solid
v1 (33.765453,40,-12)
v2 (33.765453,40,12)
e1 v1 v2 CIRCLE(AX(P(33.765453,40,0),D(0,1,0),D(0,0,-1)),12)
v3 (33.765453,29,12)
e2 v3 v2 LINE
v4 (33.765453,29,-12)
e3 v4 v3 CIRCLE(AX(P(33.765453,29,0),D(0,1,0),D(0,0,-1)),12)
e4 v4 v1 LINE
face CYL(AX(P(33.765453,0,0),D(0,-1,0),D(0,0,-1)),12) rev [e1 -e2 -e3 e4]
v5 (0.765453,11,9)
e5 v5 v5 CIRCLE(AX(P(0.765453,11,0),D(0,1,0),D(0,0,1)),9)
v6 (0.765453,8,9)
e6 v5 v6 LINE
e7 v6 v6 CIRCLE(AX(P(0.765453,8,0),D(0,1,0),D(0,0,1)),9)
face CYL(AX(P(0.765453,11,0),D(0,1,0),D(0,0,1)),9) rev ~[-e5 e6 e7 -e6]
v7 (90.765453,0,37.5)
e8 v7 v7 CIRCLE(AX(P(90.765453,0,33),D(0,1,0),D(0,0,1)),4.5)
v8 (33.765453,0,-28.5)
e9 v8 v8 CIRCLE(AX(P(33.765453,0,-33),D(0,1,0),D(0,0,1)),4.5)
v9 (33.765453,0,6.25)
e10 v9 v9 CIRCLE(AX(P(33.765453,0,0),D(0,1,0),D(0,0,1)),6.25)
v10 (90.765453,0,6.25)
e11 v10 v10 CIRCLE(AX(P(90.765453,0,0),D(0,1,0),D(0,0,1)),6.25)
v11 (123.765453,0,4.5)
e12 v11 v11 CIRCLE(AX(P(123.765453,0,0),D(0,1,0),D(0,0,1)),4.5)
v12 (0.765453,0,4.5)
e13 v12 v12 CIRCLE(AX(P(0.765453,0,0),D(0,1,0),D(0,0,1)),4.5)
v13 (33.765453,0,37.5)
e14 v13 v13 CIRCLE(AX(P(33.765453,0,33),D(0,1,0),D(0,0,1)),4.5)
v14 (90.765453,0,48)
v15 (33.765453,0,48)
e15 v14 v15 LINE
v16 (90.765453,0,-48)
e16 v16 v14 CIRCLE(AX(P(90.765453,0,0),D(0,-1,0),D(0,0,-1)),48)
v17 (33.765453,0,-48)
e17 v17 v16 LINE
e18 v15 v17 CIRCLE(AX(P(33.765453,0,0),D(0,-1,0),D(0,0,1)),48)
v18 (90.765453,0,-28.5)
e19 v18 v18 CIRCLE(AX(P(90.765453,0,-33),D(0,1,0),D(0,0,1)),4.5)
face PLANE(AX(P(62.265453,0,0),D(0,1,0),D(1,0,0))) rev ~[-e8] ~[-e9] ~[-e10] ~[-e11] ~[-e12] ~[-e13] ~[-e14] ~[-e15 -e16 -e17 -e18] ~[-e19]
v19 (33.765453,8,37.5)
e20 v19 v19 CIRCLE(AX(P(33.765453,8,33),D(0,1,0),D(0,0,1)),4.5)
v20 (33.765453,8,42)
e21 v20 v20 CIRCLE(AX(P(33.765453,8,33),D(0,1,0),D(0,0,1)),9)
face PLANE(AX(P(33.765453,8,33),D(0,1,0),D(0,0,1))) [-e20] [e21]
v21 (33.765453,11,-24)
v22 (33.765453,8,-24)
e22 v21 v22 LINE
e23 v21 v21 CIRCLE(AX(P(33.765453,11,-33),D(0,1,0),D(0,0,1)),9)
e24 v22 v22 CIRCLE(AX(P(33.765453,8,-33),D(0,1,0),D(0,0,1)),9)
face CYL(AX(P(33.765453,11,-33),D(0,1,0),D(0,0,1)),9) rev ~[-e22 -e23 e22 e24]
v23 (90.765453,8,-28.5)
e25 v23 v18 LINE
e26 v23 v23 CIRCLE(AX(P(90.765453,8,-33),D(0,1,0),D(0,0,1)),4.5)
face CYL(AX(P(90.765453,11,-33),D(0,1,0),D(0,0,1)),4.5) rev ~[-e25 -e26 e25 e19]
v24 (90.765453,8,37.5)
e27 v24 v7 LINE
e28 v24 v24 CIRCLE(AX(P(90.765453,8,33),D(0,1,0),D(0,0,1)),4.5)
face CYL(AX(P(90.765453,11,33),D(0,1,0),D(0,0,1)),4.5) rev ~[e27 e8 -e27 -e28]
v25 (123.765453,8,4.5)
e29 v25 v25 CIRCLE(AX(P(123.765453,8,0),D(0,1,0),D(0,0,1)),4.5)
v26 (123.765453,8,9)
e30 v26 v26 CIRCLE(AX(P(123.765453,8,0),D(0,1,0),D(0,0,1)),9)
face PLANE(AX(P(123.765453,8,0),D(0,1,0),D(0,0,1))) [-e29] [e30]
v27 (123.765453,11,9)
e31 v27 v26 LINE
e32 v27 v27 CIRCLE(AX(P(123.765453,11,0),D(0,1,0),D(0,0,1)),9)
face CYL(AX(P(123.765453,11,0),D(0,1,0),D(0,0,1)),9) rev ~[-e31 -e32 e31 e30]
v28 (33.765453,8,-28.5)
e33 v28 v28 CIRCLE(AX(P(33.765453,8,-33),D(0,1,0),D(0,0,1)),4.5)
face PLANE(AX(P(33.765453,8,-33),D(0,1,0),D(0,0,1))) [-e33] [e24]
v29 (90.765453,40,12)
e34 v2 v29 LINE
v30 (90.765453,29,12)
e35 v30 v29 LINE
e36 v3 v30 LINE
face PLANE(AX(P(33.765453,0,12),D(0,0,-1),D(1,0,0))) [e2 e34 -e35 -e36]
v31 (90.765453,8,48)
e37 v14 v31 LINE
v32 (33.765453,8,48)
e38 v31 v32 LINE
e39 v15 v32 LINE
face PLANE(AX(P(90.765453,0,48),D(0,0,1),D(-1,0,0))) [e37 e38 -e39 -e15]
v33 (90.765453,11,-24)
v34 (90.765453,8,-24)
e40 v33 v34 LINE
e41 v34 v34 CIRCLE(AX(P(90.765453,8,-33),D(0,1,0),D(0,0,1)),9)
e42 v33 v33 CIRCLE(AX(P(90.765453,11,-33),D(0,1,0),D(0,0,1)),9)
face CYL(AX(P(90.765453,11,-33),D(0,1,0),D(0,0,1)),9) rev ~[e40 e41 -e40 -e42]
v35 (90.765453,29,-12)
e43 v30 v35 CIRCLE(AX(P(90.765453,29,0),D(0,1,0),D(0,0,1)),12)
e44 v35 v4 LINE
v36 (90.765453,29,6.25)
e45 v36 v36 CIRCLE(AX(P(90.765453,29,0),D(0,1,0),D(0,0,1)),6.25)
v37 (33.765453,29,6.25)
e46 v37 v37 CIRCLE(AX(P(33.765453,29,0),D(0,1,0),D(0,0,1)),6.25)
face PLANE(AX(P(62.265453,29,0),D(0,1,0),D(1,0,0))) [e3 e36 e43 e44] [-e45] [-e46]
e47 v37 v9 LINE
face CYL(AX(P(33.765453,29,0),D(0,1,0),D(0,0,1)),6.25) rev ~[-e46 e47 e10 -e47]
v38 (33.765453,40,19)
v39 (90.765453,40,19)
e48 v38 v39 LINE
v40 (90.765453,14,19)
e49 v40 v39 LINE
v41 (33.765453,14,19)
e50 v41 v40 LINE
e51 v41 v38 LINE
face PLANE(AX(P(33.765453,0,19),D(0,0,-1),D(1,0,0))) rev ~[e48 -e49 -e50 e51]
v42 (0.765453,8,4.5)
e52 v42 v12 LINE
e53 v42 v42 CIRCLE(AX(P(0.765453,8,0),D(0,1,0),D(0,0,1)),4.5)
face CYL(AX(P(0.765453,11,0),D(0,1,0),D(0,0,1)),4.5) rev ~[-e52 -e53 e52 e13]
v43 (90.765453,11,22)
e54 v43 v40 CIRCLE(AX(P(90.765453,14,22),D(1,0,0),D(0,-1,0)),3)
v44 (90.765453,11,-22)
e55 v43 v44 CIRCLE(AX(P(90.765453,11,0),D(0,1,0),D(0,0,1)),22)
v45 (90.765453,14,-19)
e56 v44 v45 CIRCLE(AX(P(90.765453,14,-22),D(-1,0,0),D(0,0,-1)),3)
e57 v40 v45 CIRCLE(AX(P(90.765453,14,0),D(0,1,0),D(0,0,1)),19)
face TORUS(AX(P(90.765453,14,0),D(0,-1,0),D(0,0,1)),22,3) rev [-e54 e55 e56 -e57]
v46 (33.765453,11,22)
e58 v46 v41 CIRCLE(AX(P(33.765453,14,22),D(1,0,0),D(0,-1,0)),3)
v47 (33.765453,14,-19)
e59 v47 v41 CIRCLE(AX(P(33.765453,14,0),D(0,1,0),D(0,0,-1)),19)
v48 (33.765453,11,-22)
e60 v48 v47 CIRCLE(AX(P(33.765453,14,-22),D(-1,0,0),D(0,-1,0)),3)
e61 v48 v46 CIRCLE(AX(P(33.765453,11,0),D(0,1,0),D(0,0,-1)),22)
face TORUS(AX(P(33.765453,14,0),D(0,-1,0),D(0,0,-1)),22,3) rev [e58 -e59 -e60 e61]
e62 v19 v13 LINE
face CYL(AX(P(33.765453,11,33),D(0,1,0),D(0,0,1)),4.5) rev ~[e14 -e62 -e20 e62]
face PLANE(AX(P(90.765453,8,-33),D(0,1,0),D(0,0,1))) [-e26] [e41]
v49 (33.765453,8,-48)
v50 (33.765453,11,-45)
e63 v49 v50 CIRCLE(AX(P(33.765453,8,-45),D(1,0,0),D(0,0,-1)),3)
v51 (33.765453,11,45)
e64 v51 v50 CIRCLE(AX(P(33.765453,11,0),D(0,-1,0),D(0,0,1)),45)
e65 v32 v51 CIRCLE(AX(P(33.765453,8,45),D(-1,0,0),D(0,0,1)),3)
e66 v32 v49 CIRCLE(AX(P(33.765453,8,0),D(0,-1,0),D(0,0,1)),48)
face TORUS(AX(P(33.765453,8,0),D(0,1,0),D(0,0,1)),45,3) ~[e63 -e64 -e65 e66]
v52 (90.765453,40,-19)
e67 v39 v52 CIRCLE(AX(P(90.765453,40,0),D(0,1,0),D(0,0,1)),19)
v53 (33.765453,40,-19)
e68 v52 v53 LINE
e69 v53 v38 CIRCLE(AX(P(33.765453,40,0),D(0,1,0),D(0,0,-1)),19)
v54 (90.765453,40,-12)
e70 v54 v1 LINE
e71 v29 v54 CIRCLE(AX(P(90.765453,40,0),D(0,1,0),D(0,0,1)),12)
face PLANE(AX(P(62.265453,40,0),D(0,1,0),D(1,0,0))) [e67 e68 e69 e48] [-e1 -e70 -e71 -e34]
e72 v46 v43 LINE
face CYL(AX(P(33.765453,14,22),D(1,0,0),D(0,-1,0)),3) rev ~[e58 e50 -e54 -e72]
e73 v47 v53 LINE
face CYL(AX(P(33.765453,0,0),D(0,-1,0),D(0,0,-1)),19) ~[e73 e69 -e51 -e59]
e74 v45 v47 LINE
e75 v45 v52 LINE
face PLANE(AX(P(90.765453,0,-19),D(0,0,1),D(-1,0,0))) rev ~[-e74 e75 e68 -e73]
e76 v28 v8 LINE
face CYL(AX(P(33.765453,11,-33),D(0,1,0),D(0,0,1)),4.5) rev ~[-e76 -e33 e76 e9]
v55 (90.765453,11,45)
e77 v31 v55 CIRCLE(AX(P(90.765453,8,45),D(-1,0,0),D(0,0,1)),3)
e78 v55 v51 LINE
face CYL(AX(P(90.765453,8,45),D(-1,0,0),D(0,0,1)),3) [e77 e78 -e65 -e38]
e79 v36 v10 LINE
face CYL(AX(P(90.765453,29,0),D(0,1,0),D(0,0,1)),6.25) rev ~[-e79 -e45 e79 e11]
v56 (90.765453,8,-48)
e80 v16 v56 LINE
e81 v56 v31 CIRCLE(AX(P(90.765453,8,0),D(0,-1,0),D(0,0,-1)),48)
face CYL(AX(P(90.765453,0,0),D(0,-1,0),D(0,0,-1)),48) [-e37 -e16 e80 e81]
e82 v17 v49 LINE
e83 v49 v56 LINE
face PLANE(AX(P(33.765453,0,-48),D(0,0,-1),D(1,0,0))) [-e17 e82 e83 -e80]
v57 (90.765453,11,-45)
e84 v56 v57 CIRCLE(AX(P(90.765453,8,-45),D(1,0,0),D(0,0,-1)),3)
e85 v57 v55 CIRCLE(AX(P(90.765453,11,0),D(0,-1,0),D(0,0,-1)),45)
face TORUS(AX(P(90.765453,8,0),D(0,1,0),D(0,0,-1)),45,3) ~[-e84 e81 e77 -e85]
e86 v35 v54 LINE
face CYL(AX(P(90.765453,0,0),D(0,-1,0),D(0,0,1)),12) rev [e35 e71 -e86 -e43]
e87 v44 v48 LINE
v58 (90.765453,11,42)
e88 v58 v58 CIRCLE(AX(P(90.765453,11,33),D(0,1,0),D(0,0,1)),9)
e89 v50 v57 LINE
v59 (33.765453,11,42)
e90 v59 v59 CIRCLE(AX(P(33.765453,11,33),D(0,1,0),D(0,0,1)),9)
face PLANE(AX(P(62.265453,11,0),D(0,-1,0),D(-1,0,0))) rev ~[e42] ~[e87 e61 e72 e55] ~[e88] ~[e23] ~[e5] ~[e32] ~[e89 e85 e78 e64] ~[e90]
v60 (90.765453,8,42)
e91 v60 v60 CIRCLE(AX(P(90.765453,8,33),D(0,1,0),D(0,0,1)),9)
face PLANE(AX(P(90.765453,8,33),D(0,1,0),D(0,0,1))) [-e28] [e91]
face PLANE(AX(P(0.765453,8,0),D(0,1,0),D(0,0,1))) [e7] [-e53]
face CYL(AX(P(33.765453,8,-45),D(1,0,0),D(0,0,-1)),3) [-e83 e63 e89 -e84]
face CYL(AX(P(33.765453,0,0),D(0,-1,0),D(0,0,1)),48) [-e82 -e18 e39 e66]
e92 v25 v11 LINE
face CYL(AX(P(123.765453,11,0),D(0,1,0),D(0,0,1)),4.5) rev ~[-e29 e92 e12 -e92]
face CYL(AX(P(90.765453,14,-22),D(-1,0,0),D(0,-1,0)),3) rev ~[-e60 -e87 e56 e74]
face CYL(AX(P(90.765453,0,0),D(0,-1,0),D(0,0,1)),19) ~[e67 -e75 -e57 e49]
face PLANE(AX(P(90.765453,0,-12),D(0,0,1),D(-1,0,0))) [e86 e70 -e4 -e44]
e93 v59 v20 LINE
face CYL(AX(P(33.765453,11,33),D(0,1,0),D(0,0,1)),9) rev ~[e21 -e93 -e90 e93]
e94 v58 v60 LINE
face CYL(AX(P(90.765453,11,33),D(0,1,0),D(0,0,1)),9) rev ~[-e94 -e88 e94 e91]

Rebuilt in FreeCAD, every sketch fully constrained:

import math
import FreeCAD as App
import Part
import Sketcher

V = App.Vector


def edges_at(feature, points):
    """Names of the edges that pass closest to the given points."""
    edges = feature.Shape.Edges
    near = lambda p: min(range(len(edges)), key=lambda i: edges[i].distToShape(Part.Vertex(*p))[0])
    return sorted({f"Edge{near(p) + 1}" for p in points})

doc = App.newDocument("Part")
body = doc.addObject("PartDesign::Body", "Body")

# Sketch on XZ plane
sketch1 = body.newObject("Sketcher::SketchObject", "Sketch")
sketch1.AttachmentSupport = (doc.getObject("XZ_Plane"), [""])
sketch1.MapMode = "FlatFace"
sketch1.addGeometry(Part.LineSegment(V(91, -48, 0), V(34, -48, 0)), False)
sketch1.addGeometry(Part.ArcOfCircle(Part.Circle(V(34, 0, 0), V(0, 0, 1), 48), math.radians(90), math.radians(270)), False)
sketch1.addGeometry(Part.LineSegment(V(34, 48, 0), V(91, 48, 0)), False)
sketch1.addGeometry(Part.ArcOfCircle(Part.Circle(V(91, 0, 0), V(0, 0, 1), 48), math.radians(-90), math.radians(90)), False)
sketch1.addConstraint(Sketcher.Constraint("Tangent", 0, 2, 1, 2))
sketch1.addConstraint(Sketcher.Constraint("Tangent", 1, 1, 2, 1))
sketch1.addConstraint(Sketcher.Constraint("Tangent", 2, 2, 3, 2))
sketch1.addConstraint(Sketcher.Constraint("Tangent", 3, 1, 0, 1))
sketch1.addConstraint(Sketcher.Constraint("Horizontal", 0))
sketch1.addConstraint(Sketcher.Constraint("Horizontal", 2))
sketch1.addConstraint(Sketcher.Constraint("PointOnObject", 1, 3, -1))
sketch1.addConstraint(Sketcher.Constraint("Radius", 1, 48.0))
sketch1.addConstraint(Sketcher.Constraint("DistanceX", 0, 2, 0, 1, 57.0))
sketch1.addConstraint(Sketcher.Constraint("DistanceX", -1, 1, 1, 3, 33.765453))
pad1 = body.newObject("PartDesign::Pad", "Pad")
pad1.Profile = sketch1
pad1.Length = 11
pad1.Reversed = True

# Sketch on XZ plane
sketch2 = body.newObject("Sketcher::SketchObject", "Sketch001")
sketch2.AttachmentSupport = (doc.getObject("XZ_Plane"), [""])
sketch2.MapMode = "FlatFace"
sketch2.AttachmentOffset = App.Placement(V(0, 0, -11), App.Rotation())
sketch2.addGeometry(Part.Circle(V(0.8, 0, 0), V(0, 0, 1), 9), False)
sketch2.addGeometry(Part.Circle(V(0.8, 0, 0), V(0, 0, 1), 4.5), False)
sketch2.addGeometry(Part.Circle(V(33.8, -33, 0), V(0, 0, 1), 9), False)
sketch2.addGeometry(Part.Circle(V(33.8, -33, 0), V(0, 0, 1), 4.5), False)
sketch2.addGeometry(Part.Circle(V(90.8, -33, 0), V(0, 0, 1), 9), False)
sketch2.addGeometry(Part.Circle(V(90.8, -33, 0), V(0, 0, 1), 4.5), False)
sketch2.addGeometry(Part.Circle(V(123.8, 0, 0), V(0, 0, 1), 9), False)
sketch2.addGeometry(Part.Circle(V(123.8, 0, 0), V(0, 0, 1), 4.5), False)
sketch2.addGeometry(Part.Circle(V(90.8, 33, 0), V(0, 0, 1), 9), False)
sketch2.addGeometry(Part.Circle(V(90.8, 33, 0), V(0, 0, 1), 4.5), False)
sketch2.addGeometry(Part.Circle(V(33.8, 33, 0), V(0, 0, 1), 9), False)
sketch2.addGeometry(Part.Circle(V(33.8, 33, 0), V(0, 0, 1), 4.5), False)
sketch2.addConstraint(Sketcher.Constraint("Coincident", 1, 3, 0, 3))
sketch2.addConstraint(Sketcher.Constraint("Coincident", 3, 3, 2, 3))
sketch2.addConstraint(Sketcher.Constraint("Coincident", 5, 3, 4, 3))
sketch2.addConstraint(Sketcher.Constraint("Coincident", 7, 3, 6, 3))
sketch2.addConstraint(Sketcher.Constraint("Coincident", 9, 3, 8, 3))
sketch2.addConstraint(Sketcher.Constraint("Coincident", 11, 3, 10, 3))
sketch2.addConstraint(Sketcher.Constraint("Equal", 0, 2))
sketch2.addConstraint(Sketcher.Constraint("Equal", 1, 3))
sketch2.addConstraint(Sketcher.Constraint("Equal", 2, 4))
sketch2.addConstraint(Sketcher.Constraint("Equal", 3, 5))
sketch2.addConstraint(Sketcher.Constraint("Equal", 4, 6))
sketch2.addConstraint(Sketcher.Constraint("Equal", 5, 7))
sketch2.addConstraint(Sketcher.Constraint("Equal", 6, 8))
sketch2.addConstraint(Sketcher.Constraint("Equal", 7, 9))
sketch2.addConstraint(Sketcher.Constraint("Equal", 8, 10))
sketch2.addConstraint(Sketcher.Constraint("Equal", 9, 11))
sketch2.addConstraint(Sketcher.Constraint("Symmetric", 4, 3, 8, 3, -1))
sketch2.addConstraint(Sketcher.Constraint("Symmetric", 2, 3, 10, 3, -1))
sketch2.addConstraint(Sketcher.Constraint("PointOnObject", 0, 3, -1))
sketch2.addConstraint(Sketcher.Constraint("PointOnObject", 6, 3, -1))
sketch2.addConstraint(Sketcher.Constraint("Horizontal", 3, 3, 4, 3))
sketch2.addConstraint(Sketcher.Constraint("Diameter", 0, 18.0))
sketch2.addConstraint(Sketcher.Constraint("Diameter", 1, 9.0))
sketch2.addConstraint(Sketcher.Constraint("DistanceY", 2, 3, -1, 1, 33.0))
sketch2.addConstraint(Sketcher.Constraint("DistanceX", 0, 3, 2, 3, 33.0))
sketch2.addConstraint(Sketcher.Constraint("DistanceX", 2, 3, 4, 3, 57.0))
sketch2.addConstraint(Sketcher.Constraint("DistanceX", 4, 3, 6, 3, 33.0))
sketch2.addConstraint(Sketcher.Constraint("DistanceX", -1, 1, 0, 3, 0.765453))
pocket1 = body.newObject("PartDesign::Pocket", "Pocket")
pocket1.Profile = sketch2
pocket1.Length = 3
pocket1.Reversed = True

# Sketch on XZ plane
sketch3 = body.newObject("Sketcher::SketchObject", "Sketch002")
sketch3.AttachmentSupport = (doc.getObject("XZ_Plane"), [""])
sketch3.MapMode = "FlatFace"
sketch3.AttachmentOffset = App.Placement(V(0, 0, -11), App.Rotation())
sketch3.addGeometry(Part.Circle(V(33.8, 33, 0), V(0, 0, 1), 4.5), False)
sketch3.addGeometry(Part.Circle(V(0.8, 0, 0), V(0, 0, 1), 4.5), False)
sketch3.addGeometry(Part.Circle(V(33.8, -33, 0), V(0, 0, 1), 4.5), False)
sketch3.addGeometry(Part.Circle(V(90.8, -33, 0), V(0, 0, 1), 4.5), False)
sketch3.addGeometry(Part.Circle(V(123.8, 0, 0), V(0, 0, 1), 4.5), False)
sketch3.addGeometry(Part.Circle(V(90.8, 33, 0), V(0, 0, 1), 4.5), False)
sketch3.addConstraint(Sketcher.Constraint("Equal", 0, 1))
sketch3.addConstraint(Sketcher.Constraint("Equal", 1, 2))
sketch3.addConstraint(Sketcher.Constraint("Equal", 2, 3))
sketch3.addConstraint(Sketcher.Constraint("Equal", 3, 4))
sketch3.addConstraint(Sketcher.Constraint("Equal", 4, 5))
sketch3.addConstraint(Sketcher.Constraint("Symmetric", 0, 3, 2, 3, -1))
sketch3.addConstraint(Sketcher.Constraint("Symmetric", 3, 3, 5, 3, -1))
sketch3.addConstraint(Sketcher.Constraint("PointOnObject", 1, 3, -1))
sketch3.addConstraint(Sketcher.Constraint("PointOnObject", 4, 3, -1))
sketch3.addConstraint(Sketcher.Constraint("Horizontal", 2, 3, 3, 3))
sketch3.addConstraint(Sketcher.Constraint("Diameter", 0, 9.0))
sketch3.addConstraint(Sketcher.Constraint("DistanceY", -1, 1, 0, 3, 33.0))
sketch3.addConstraint(Sketcher.Constraint("DistanceX", 1, 3, 0, 3, 33.0))
sketch3.addConstraint(Sketcher.Constraint("DistanceX", 2, 3, 3, 3, 57.0))
sketch3.addConstraint(Sketcher.Constraint("DistanceX", 3, 3, 4, 3, 33.0))
sketch3.addConstraint(Sketcher.Constraint("DistanceX", -1, 1, 0, 3, 33.765453))
pocket2 = body.newObject("PartDesign::Pocket", "Pocket001")
pocket2.Profile = sketch3
pocket2.Length = 11
pocket2.Reversed = True

# Sketch on XZ plane
sketch4 = body.newObject("Sketcher::SketchObject", "Sketch003")
sketch4.AttachmentSupport = (doc.getObject("XZ_Plane"), [""])
sketch4.MapMode = "FlatFace"
sketch4.addGeometry(Part.LineSegment(V(34, 19, 0), V(91, 19, 0)), False)
sketch4.addGeometry(Part.ArcOfCircle(Part.Circle(V(91, 0, 0), V(0, 0, 1), 19), math.radians(-90), math.radians(90)), False)
sketch4.addGeometry(Part.LineSegment(V(91, -19, 0), V(34, -19, 0)), False)
sketch4.addGeometry(Part.ArcOfCircle(Part.Circle(V(34, 0, 0), V(0, 0, 1), 19), math.radians(90), math.radians(270)), False)
sketch4.addGeometry(Part.ArcOfCircle(Part.Circle(V(91, 0, 0), V(0, 0, 1), 12), math.radians(-90), math.radians(90)), False)
sketch4.addGeometry(Part.LineSegment(V(91, 12, 0), V(34, 12, 0)), False)
sketch4.addGeometry(Part.ArcOfCircle(Part.Circle(V(34, 0, 0), V(0, 0, 1), 12), math.radians(90), math.radians(270)), False)
sketch4.addGeometry(Part.LineSegment(V(34, -12, 0), V(91, -12, 0)), False)
sketch4.addConstraint(Sketcher.Constraint("Tangent", 0, 2, 1, 2))
sketch4.addConstraint(Sketcher.Constraint("Tangent", 1, 1, 2, 1))
sketch4.addConstraint(Sketcher.Constraint("Tangent", 2, 2, 3, 2))
sketch4.addConstraint(Sketcher.Constraint("Tangent", 3, 1, 0, 1))
sketch4.addConstraint(Sketcher.Constraint("Tangent", 4, 2, 5, 1))
sketch4.addConstraint(Sketcher.Constraint("Tangent", 5, 2, 6, 1))
sketch4.addConstraint(Sketcher.Constraint("Tangent", 6, 2, 7, 1))
sketch4.addConstraint(Sketcher.Constraint("Tangent", 7, 2, 4, 1))
sketch4.addConstraint(Sketcher.Constraint("Horizontal", 0))
sketch4.addConstraint(Sketcher.Constraint("Horizontal", 2))
sketch4.addConstraint(Sketcher.Constraint("Horizontal", 5))
sketch4.addConstraint(Sketcher.Constraint("Horizontal", 7))
sketch4.addConstraint(Sketcher.Constraint("Coincident", 4, 3, 1, 3))
sketch4.addConstraint(Sketcher.Constraint("PointOnObject", 1, 3, -1))
sketch4.addConstraint(Sketcher.Constraint("Vertical", 6, 3, 2, 2))
sketch4.addConstraint(Sketcher.Constraint("Radius", 1, 19.0))
sketch4.addConstraint(Sketcher.Constraint("Radius", 4, 12.0))
sketch4.addConstraint(Sketcher.Constraint("DistanceX", 0, 1, 0, 2, 57.0))
sketch4.addConstraint(Sketcher.Constraint("DistanceX", -1, 1, 1, 3, 90.765453))
pad2 = body.newObject("PartDesign::Pad", "Pad001")
pad2.Profile = sketch4
pad2.Length = 40
pad2.Reversed = True

# Sketch on XZ plane
sketch5 = body.newObject("Sketcher::SketchObject", "Sketch004")
sketch5.AttachmentSupport = (doc.getObject("XZ_Plane"), [""])
sketch5.MapMode = "FlatFace"
sketch5.addGeometry(Part.LineSegment(V(34, 12, 0), V(91, 12, 0)), False)
sketch5.addGeometry(Part.ArcOfCircle(Part.Circle(V(91, 0, 0), V(0, 0, 1), 12), math.radians(-90), math.radians(90)), False)
sketch5.addGeometry(Part.LineSegment(V(91, -12, 0), V(34, -12, 0)), False)
sketch5.addGeometry(Part.ArcOfCircle(Part.Circle(V(34, 0, 0), V(0, 0, 1), 12), math.radians(90), math.radians(270)), False)
sketch5.addConstraint(Sketcher.Constraint("Tangent", 0, 2, 1, 2))
sketch5.addConstraint(Sketcher.Constraint("Tangent", 1, 1, 2, 1))
sketch5.addConstraint(Sketcher.Constraint("Tangent", 2, 2, 3, 2))
sketch5.addConstraint(Sketcher.Constraint("Tangent", 3, 1, 0, 1))
sketch5.addConstraint(Sketcher.Constraint("Horizontal", 0))
sketch5.addConstraint(Sketcher.Constraint("Horizontal", 2))
sketch5.addConstraint(Sketcher.Constraint("PointOnObject", 1, 3, -1))
sketch5.addConstraint(Sketcher.Constraint("Radius", 1, 12.0))
sketch5.addConstraint(Sketcher.Constraint("DistanceX", 0, 1, 0, 2, 57.0))
sketch5.addConstraint(Sketcher.Constraint("DistanceX", -1, 1, 1, 3, 90.765453))
pad3 = body.newObject("PartDesign::Pad", "Pad002")
pad3.Profile = sketch5
pad3.Length = 29
pad3.Reversed = True

# Sketch on XZ plane
sketch6 = body.newObject("Sketcher::SketchObject", "Sketch005")
sketch6.AttachmentSupport = (doc.getObject("XZ_Plane"), [""])
sketch6.MapMode = "FlatFace"
sketch6.AttachmentOffset = App.Placement(V(0, 0, -29), App.Rotation())
sketch6.addGeometry(Part.Circle(V(34, 0, 0), V(0, 0, 1), 6), False)
sketch6.addGeometry(Part.Circle(V(91, 0, 0), V(0, 0, 1), 6), False)
sketch6.addConstraint(Sketcher.Constraint("Equal", 0, 1))
sketch6.addConstraint(Sketcher.Constraint("PointOnObject", 0, 3, -1))
sketch6.addConstraint(Sketcher.Constraint("PointOnObject", 1, 3, -1))
sketch6.addConstraint(Sketcher.Constraint("Diameter", 0, 12.5))
sketch6.addConstraint(Sketcher.Constraint("DistanceX", 0, 3, 1, 3, 57.0))
sketch6.addConstraint(Sketcher.Constraint("DistanceX", -1, 1, 0, 3, 33.765453))
pocket3 = body.newObject("PartDesign::Pocket", "Pocket002")
pocket3.Profile = sketch6
pocket3.Type = "ThroughAll"
pocket3.Reversed = True
doc.recompute()

fillet = body.newObject("PartDesign::Fillet", "Fillet")
fillet.Base = (pocket3, edges_at(pocket3, [
    (138.765, 11, 0),
    (62.265, 11, -48),
    (-14.235, 11, 0),
    (62.265, 11, 48),
]))
fillet.Radius = 3
doc.recompute()

fillet2 = body.newObject("PartDesign::Fillet", "Fillet001")
fillet2.Base = (fillet, edges_at(fillet, [
    (62.265, 11, 19),
    (109.765, 11, 0),
    (14.765, 11, 0),
    (62.265, 11, -19),
]))
fillet2.Radius = 3

doc.recompute()
